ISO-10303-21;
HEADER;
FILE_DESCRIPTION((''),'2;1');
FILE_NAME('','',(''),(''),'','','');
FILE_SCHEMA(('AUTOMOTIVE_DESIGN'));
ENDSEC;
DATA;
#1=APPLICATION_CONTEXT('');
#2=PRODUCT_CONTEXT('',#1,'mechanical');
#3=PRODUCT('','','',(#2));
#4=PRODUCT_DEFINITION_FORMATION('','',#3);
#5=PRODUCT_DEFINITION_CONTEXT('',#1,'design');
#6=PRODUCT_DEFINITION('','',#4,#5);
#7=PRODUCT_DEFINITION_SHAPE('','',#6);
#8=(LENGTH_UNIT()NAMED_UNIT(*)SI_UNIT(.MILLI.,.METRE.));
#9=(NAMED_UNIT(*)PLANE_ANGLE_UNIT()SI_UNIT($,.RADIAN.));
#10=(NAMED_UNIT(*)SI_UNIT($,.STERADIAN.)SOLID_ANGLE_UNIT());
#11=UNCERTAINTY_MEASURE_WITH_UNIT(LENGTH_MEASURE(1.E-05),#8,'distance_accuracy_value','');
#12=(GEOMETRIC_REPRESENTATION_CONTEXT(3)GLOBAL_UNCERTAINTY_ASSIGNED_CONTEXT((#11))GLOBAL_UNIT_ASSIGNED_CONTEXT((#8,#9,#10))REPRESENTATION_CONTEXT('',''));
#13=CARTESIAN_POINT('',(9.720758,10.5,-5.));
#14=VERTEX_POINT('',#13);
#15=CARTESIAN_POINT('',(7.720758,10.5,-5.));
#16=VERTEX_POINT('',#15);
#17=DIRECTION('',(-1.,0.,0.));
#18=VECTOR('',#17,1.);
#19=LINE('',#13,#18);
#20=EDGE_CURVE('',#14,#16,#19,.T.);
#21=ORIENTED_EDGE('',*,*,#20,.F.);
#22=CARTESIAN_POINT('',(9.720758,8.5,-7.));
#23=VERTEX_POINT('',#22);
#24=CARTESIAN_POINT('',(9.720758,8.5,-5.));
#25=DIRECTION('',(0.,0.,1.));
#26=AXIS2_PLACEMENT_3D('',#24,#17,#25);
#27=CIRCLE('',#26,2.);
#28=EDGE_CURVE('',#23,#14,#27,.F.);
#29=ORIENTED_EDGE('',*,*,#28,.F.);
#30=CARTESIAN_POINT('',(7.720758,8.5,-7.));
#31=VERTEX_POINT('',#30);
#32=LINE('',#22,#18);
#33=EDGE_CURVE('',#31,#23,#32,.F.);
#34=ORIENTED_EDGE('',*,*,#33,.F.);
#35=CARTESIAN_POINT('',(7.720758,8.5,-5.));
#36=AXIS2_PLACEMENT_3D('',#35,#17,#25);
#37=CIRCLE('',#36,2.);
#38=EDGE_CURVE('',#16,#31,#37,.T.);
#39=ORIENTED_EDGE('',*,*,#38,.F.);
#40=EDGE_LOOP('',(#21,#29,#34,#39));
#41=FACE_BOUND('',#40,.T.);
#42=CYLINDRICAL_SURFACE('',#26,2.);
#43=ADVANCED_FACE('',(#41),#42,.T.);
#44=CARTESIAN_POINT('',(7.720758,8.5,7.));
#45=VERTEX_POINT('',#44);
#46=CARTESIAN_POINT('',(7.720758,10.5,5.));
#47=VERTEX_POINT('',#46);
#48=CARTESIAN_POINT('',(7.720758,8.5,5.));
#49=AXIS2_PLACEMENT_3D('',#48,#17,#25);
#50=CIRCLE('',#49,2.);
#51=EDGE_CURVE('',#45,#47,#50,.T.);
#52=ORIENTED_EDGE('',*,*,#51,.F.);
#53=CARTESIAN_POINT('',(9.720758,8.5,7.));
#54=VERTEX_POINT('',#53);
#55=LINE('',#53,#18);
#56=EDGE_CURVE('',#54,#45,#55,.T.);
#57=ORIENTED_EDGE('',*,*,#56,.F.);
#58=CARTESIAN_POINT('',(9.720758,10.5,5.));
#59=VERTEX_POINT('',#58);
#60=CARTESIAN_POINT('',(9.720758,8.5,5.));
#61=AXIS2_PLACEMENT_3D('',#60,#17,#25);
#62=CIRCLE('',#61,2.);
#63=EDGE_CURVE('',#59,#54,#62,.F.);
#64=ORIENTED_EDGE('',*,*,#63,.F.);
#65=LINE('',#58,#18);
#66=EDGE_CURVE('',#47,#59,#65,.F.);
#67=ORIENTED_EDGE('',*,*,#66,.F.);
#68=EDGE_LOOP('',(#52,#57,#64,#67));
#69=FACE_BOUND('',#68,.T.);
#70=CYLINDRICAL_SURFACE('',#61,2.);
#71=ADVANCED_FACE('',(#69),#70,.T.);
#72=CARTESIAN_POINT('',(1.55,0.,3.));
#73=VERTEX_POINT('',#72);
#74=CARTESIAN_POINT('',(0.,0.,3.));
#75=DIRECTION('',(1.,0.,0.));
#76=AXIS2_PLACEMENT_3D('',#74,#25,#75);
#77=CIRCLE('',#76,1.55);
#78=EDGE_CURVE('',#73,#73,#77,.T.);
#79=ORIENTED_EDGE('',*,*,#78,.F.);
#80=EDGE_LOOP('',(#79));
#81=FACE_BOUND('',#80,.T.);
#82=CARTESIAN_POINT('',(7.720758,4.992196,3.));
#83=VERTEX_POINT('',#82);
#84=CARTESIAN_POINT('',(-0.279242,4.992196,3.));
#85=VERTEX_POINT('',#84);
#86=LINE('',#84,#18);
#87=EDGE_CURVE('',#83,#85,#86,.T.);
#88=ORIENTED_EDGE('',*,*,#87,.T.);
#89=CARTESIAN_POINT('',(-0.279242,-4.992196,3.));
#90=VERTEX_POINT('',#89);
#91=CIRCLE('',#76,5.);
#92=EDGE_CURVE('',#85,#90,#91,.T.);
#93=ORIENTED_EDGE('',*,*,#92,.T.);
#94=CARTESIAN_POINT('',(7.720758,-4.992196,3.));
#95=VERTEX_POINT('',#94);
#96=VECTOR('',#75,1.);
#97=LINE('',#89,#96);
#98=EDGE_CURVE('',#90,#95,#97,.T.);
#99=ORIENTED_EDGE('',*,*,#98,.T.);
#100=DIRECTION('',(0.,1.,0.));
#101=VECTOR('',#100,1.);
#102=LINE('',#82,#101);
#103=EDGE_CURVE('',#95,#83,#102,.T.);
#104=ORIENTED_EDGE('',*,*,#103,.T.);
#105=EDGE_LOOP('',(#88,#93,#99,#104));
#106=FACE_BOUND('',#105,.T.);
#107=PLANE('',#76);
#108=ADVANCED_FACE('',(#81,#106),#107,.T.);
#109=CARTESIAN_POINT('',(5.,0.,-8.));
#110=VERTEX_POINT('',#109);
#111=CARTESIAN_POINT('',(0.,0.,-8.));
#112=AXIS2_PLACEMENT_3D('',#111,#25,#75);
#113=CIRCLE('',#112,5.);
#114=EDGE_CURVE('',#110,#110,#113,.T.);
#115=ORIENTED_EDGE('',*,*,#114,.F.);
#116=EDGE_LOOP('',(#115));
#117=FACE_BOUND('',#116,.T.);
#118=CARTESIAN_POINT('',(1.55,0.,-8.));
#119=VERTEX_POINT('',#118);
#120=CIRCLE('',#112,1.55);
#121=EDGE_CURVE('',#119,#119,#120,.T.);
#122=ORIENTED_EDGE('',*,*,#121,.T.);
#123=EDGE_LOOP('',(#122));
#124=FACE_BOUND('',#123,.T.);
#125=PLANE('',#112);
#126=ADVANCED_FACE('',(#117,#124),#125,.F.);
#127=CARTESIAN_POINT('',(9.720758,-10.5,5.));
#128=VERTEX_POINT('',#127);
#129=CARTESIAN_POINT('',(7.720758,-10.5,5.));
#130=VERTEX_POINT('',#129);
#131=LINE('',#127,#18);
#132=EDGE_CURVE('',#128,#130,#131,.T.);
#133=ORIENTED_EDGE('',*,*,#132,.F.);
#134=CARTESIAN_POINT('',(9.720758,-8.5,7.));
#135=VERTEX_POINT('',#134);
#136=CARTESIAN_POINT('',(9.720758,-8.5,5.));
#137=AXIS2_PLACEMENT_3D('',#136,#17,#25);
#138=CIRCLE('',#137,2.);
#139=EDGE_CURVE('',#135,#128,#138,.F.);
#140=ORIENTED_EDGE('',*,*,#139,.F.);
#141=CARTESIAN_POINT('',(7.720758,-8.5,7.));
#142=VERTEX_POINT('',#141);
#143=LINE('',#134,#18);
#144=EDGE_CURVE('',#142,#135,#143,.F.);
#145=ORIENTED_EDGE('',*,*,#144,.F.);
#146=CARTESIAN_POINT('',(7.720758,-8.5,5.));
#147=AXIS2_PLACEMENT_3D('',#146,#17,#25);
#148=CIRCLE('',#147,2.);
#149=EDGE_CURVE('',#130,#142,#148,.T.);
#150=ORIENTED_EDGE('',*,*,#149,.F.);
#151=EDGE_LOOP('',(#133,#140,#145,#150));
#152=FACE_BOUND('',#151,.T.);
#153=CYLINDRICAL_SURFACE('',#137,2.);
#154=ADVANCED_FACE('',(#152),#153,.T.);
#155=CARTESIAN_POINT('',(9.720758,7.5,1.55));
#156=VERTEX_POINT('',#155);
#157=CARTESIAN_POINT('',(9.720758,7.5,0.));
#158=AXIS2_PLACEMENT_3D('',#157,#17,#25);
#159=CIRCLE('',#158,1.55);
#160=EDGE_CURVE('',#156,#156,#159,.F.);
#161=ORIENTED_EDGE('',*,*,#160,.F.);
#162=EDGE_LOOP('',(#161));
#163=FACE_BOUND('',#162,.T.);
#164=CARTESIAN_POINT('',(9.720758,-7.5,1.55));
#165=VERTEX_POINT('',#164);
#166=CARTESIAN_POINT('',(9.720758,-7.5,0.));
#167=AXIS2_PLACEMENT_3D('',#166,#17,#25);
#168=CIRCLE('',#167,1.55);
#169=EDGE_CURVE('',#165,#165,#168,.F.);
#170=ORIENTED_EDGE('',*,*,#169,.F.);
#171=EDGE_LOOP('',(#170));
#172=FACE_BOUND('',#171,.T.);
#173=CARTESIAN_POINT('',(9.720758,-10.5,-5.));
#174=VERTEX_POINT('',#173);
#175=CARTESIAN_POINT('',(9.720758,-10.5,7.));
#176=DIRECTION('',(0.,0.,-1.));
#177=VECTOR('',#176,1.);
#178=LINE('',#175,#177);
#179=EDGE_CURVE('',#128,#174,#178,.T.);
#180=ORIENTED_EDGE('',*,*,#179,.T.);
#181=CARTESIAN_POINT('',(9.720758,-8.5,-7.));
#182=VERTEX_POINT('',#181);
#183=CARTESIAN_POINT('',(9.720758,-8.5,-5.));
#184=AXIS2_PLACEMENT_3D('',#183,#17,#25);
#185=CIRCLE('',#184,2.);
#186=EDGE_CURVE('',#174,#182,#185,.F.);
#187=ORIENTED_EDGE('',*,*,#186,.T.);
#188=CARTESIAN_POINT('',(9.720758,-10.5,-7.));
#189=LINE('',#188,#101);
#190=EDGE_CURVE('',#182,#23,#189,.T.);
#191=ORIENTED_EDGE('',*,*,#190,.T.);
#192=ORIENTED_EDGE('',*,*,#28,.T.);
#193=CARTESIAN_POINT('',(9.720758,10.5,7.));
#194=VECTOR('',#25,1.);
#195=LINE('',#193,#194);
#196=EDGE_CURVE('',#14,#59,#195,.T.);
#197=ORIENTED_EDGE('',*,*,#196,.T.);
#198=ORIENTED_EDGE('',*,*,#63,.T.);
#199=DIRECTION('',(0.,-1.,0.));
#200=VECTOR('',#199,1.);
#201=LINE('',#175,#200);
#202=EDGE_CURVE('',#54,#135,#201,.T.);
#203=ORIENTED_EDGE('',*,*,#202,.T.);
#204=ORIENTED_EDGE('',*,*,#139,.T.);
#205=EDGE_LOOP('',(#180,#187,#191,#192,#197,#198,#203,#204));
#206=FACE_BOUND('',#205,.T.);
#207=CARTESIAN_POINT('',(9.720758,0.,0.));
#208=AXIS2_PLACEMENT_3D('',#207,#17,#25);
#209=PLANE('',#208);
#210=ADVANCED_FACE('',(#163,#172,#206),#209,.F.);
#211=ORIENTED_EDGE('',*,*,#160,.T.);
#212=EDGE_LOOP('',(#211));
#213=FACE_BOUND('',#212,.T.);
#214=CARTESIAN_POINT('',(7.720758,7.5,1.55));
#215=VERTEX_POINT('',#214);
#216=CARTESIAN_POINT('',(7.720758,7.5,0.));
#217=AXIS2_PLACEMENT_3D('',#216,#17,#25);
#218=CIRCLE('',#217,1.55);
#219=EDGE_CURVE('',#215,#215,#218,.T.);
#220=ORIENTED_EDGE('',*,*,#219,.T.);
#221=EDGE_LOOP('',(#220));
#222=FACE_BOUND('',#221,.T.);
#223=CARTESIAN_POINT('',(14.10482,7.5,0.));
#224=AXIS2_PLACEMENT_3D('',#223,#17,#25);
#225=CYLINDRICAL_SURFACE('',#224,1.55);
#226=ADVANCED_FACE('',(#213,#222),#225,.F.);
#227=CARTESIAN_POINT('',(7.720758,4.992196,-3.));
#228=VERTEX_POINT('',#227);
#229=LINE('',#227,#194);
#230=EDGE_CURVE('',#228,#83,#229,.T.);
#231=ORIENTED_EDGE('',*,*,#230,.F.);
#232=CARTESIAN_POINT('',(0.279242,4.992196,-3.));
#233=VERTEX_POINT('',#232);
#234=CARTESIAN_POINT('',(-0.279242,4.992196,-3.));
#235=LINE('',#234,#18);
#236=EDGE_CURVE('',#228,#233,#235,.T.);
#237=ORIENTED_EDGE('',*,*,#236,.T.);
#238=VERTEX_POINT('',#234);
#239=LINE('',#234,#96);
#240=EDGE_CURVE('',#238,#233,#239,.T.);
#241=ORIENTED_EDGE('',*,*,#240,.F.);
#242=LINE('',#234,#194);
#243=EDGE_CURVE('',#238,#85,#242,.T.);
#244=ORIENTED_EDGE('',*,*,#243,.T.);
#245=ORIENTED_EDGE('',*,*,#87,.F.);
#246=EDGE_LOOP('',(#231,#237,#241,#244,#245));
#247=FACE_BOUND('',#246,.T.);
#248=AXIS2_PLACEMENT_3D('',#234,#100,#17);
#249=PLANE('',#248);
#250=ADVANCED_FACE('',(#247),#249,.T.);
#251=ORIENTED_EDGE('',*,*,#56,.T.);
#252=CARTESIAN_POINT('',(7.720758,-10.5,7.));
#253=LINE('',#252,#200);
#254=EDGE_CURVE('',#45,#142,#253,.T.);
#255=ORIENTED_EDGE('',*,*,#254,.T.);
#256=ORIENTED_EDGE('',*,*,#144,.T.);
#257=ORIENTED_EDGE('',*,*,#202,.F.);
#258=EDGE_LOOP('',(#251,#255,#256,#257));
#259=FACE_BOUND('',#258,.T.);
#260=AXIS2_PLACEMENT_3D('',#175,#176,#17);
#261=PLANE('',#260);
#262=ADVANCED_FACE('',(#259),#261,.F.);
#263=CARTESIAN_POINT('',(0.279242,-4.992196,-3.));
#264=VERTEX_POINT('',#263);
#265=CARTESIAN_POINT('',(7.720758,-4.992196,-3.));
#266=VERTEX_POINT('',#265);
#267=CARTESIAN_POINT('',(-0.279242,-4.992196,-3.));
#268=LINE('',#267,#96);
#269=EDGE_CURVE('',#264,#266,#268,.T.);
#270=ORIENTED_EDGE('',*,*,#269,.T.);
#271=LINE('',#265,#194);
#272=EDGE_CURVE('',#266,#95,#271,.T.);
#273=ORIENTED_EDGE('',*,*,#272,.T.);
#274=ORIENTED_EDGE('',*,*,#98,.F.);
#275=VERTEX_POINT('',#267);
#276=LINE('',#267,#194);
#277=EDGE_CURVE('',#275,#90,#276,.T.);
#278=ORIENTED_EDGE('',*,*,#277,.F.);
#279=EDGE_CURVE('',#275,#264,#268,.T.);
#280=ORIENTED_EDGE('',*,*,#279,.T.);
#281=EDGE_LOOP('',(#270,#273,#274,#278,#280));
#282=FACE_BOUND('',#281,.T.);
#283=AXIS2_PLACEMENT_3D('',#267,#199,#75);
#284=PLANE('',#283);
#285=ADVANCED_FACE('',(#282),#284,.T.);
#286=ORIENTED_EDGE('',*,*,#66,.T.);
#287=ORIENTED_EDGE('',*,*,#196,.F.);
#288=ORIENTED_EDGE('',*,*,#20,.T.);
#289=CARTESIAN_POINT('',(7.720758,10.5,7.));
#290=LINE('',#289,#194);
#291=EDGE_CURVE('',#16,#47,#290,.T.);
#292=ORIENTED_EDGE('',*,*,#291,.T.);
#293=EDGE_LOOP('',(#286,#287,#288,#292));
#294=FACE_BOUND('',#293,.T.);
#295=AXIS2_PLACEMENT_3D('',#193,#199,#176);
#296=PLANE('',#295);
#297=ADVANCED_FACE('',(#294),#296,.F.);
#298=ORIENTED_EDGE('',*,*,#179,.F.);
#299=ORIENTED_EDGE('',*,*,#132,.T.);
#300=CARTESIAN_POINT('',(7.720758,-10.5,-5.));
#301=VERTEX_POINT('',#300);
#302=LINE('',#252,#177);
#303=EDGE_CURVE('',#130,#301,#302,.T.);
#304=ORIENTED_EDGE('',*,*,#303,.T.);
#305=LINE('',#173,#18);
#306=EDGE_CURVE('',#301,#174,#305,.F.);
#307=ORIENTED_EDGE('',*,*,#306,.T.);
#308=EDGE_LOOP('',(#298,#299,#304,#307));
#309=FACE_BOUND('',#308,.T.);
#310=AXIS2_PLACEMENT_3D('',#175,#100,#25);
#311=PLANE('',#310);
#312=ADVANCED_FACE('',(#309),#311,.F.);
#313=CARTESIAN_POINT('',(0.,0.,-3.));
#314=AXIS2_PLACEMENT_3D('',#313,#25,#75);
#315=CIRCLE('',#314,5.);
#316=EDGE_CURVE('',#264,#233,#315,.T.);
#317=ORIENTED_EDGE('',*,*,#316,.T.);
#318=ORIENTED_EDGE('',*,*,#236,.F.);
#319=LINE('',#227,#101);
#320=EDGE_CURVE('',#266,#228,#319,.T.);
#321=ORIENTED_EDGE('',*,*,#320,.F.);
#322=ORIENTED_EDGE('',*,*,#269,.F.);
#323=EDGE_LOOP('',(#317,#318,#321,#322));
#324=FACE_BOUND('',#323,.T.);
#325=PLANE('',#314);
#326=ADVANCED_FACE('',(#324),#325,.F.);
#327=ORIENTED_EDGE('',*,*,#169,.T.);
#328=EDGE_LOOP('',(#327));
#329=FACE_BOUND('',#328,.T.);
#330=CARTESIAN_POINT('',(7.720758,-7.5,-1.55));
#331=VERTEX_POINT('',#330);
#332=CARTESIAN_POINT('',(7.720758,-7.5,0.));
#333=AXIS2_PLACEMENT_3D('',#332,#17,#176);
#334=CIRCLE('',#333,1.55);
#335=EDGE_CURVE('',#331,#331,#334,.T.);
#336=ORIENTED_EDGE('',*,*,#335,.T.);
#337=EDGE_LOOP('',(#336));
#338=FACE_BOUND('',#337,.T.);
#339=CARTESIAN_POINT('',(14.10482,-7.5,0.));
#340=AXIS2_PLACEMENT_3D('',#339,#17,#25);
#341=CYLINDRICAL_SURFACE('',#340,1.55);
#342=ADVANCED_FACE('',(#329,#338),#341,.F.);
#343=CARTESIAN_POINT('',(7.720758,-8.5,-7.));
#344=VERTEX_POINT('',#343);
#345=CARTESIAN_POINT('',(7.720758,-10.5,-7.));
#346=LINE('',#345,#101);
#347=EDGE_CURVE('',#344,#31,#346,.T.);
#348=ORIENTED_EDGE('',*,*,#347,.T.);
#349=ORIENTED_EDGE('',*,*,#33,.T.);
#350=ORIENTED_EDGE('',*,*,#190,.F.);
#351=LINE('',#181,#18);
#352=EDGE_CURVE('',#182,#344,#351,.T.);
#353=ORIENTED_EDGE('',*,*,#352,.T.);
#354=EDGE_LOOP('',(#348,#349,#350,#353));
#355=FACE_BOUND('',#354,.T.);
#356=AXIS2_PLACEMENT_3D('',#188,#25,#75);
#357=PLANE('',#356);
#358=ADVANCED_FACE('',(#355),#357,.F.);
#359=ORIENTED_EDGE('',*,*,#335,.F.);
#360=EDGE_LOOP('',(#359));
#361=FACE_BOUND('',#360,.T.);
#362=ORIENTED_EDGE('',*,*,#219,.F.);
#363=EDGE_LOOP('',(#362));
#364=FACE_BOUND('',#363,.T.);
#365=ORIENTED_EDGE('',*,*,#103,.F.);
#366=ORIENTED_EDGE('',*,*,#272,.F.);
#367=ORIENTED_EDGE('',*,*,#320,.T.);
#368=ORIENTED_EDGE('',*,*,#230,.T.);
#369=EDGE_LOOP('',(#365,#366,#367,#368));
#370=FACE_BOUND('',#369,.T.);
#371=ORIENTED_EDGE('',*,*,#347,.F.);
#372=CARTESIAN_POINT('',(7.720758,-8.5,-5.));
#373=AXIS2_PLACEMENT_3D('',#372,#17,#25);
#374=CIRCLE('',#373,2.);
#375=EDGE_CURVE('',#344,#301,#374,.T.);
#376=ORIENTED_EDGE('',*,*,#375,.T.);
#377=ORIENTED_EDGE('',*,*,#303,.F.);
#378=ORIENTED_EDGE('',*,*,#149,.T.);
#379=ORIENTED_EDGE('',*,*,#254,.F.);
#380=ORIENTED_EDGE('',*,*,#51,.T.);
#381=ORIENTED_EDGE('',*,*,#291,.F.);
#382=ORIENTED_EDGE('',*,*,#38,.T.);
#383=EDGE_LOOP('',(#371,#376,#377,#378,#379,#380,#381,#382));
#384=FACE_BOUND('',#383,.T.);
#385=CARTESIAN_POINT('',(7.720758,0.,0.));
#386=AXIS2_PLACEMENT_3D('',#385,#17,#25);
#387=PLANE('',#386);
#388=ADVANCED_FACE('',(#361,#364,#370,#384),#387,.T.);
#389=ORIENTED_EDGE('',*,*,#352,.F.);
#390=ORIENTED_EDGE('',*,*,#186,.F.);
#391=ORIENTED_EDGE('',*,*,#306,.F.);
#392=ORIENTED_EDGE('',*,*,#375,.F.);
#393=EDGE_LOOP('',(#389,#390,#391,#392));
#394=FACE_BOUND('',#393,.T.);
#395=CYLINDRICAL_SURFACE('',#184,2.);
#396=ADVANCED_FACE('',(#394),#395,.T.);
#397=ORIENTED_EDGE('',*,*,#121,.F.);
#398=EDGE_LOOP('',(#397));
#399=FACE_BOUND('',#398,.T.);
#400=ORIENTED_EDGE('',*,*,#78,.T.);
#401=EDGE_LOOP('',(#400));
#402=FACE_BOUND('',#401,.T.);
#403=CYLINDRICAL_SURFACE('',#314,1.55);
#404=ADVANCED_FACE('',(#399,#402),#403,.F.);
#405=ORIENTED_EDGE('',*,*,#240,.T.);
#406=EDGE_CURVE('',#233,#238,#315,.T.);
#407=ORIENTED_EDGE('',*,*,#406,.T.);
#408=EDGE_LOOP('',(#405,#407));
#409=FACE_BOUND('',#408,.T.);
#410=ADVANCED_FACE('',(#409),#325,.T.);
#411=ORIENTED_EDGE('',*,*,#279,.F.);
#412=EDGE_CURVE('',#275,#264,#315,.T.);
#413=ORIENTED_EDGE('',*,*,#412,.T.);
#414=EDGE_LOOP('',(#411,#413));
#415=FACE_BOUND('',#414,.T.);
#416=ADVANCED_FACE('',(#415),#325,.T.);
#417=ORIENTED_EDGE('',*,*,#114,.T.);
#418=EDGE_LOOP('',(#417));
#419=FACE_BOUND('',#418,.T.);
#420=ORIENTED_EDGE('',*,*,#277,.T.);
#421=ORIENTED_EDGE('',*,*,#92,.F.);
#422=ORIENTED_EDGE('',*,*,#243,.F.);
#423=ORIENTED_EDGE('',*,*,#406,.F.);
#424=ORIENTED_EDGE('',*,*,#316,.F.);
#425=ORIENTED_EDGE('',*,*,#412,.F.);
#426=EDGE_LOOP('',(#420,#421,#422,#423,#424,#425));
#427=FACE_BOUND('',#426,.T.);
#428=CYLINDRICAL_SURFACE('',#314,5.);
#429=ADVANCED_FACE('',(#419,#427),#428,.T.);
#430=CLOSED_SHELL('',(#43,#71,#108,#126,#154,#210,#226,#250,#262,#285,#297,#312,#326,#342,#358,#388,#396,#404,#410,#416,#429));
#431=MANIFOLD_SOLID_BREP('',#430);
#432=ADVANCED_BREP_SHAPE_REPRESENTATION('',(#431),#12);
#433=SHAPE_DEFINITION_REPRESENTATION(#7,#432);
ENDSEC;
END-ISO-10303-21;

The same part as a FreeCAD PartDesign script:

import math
import FreeCAD as App
import Part
import Sketcher

V = App.Vector
Q = App.Units.Quantity


def edges_at(feature, points):
    """Names of the edges that pass closest to the given points."""
    edges = feature.Shape.Edges
    near = lambda p: min(range(len(edges)), key=lambda i: edges[i].distToShape(Part.Vertex(*p))[0])
    return sorted({f"Edge{near(p) + 1}" for p in points})


def add_polygon(sketch, points):
    """Adds a closed chain of lines whose ends are joined by coincident constraints."""
    first, n = sketch.GeometryCount, len(points)
    for a, b in zip(points, points[1:] + points[:1]):
        sketch.addGeometry(Part.LineSegment(App.Vector(*a, 0), App.Vector(*b, 0)), False)
    for i in range(n):
        sketch.addConstraint(Sketcher.Constraint("Coincident", first + i, 2, first + (i + 1) % n, 1))

doc = App.newDocument("Part")
params = doc.addObject("Spreadsheet::Sheet", "Params")
for row, (alias, value) in enumerate([
    ("sketch1_radius", "5 mm"),
    ("sketch1_diameter", "3.1 mm"),
    ("sketch1_width", "8 mm"),
    ("pad1_length", "3 mm"),
    ("pad1_length2", "3 mm"),
    ("sketch2_width", "21 mm"),
    ("sketch2_height", "14 mm"),
    ("pad2_length", "2 mm"),
    ("sketch3_diameter", "3.1 mm"),
    ("pocket1_length", "2 mm"),
    ("fillet_radius", "2 mm"),
    ("sketch4_diameter", "10 mm"),
    ("sketch4_diameter2", "3.1 mm"),
    ("pad3_length", "5 mm"),
], start=1):
    params.set(f"A{row}", alias)
    params.set(f"B{row}", "=" + value)
    params.setAlias(f"B{row}", alias)

body = doc.addObject("PartDesign::Body", "Body")

# Sketch on XY plane
sketch1 = body.newObject("Sketcher::SketchObject", "Sketch")
sketch1.AttachmentSupport = (doc.getObject("XY_Plane"), [""])
sketch1.MapMode = "FlatFace"
sketch1.addGeometry(Part.LineSegment(V(7.720758, 4.992196, 0), V(-0.279242, 4.992196, 0)), False)
sketch1.addGeometry(Part.ArcOfCircle(Part.Circle(V(0, 0, 0), V(0, 0, 1), 5), math.radians(93.201544), math.radians(266.798456)), False)
sketch1.addGeometry(Part.LineSegment(V(-0.279242, -4.992196, 0), V(7.720758, -4.992196, 0)), False)
sketch1.addGeometry(Part.LineSegment(V(7.720758, -4.992196, 0), V(7.720758, 4.992196, 0)), False)
sketch1.addGeometry(Part.Circle(V(0, 0, 0), V(0, 0, 1), 1.55), False)
sketch1.addConstraint(Sketcher.Constraint("Coincident", 0, 2, 1, 1))
sketch1.addConstraint(Sketcher.Constraint("Coincident", 1, 2, 2, 1))
sketch1.addConstraint(Sketcher.Constraint("Coincident", 2, 2, 3, 1))
sketch1.addConstraint(Sketcher.Constraint("Coincident", 3, 2, 0, 1))
sketch1.addConstraint(Sketcher.Constraint("Horizontal", 0))
sketch1.addConstraint(Sketcher.Constraint("Horizontal", 2))
sketch1.addConstraint(Sketcher.Constraint("Vertical", 3))
sketch1.addConstraint(Sketcher.Constraint("Coincident", 1, 3, -1, 1))
sketch1.addConstraint(Sketcher.Constraint("Coincident", 4, 3, -1, 1))
sketch1.addConstraint(Sketcher.Constraint("Vertical", 0, 2, 1, 2))
sketch1.addConstraint(Sketcher.Constraint("Radius", 1, Q("5 mm")))
sketch1.addConstraint(Sketcher.Constraint("Diameter", 4, Q("3.1 mm")))
sketch1.addConstraint(Sketcher.Constraint("DistanceX", 0, 2, 0, 1, Q("8 mm")))
sketch1.addConstraint(Sketcher.Constraint("DistanceY", 3, 1, 3, 2, Q("9.984393 mm")))
sketch1.setExpression("Constraints[10]", "Params.sketch1_radius")
sketch1.setExpression("Constraints[11]", "Params.sketch1_diameter")
sketch1.setExpression("Constraints[12]", "Params.sketch1_width")
pad1 = body.newObject("PartDesign::Pad", "Pad")
pad1.Profile = sketch1
pad1.Type = "TwoLengths"
pad1.setExpression("Length", "Params.pad1_length")
pad1.setExpression("Length2", "Params.pad1_length2")

# Sketch on YZ plane
sketch2 = body.newObject("Sketcher::SketchObject", "Sketch001")
sketch2.AttachmentSupport = (doc.getObject("YZ_Plane"), [""])
sketch2.MapMode = "FlatFace"
sketch2.AttachmentOffset = App.Placement(V(0, 0, 7.720758), App.Rotation())
add_polygon(sketch2, [(10.5, 7), (-10.5, 7), (-10.5, -7), (10.5, -7)])  # lines 0-3
sketch2.addConstraint(Sketcher.Constraint("Horizontal", 0))
sketch2.addConstraint(Sketcher.Constraint("Vertical", 1))
sketch2.addConstraint(Sketcher.Constraint("Horizontal", 2))
sketch2.addConstraint(Sketcher.Constraint("Vertical", 3))
sketch2.addConstraint(Sketcher.Constraint("Symmetric", 0, 2, 2, 2, -1, 1))
sketch2.addConstraint(Sketcher.Constraint("DistanceX", 0, 2, 0, 1, Q("21 mm")))
sketch2.addConstraint(Sketcher.Constraint("DistanceY", 1, 2, 1, 1, Q("14 mm")))
sketch2.setExpression("Constraints[9]", "Params.sketch2_width")
sketch2.setExpression("Constraints[10]", "Params.sketch2_height")
pad2 = body.newObject("PartDesign::Pad", "Pad001")
pad2.Profile = sketch2
pad2.setExpression("Length", "Params.pad2_length")

# Sketch on YZ plane
sketch3 = body.newObject("Sketcher::SketchObject", "Sketch002")
sketch3.AttachmentSupport = (doc.getObject("YZ_Plane"), [""])
sketch3.MapMode = "FlatFace"
sketch3.AttachmentOffset = App.Placement(V(0, 0, 7.720758), App.Rotation())
sketch3.addGeometry(Part.Circle(V(7.5, 0, 0), V(0, 0, 1), 1.55), False)
sketch3.addGeometry(Part.Circle(V(-7.5, 0, 0), V(0, 0, 1), 1.55), False)
sketch3.addConstraint(Sketcher.Constraint("Equal", 0, 1))
sketch3.addConstraint(Sketcher.Constraint("Symmetric", 0, 3, 1, 3, -1, 1))
sketch3.addConstraint(Sketcher.Constraint("PointOnObject", 0, 3, -1))
sketch3.addConstraint(Sketcher.Constraint("Diameter", 0, Q("3.1 mm")))
sketch3.addConstraint(Sketcher.Constraint("DistanceX", 1, 3, 0, 3, Q("15 mm")))
sketch3.setExpression("Constraints[3]", "Params.sketch3_diameter")
pocket1 = body.newObject("PartDesign::Pocket", "Pocket")
pocket1.Profile = sketch3
pocket1.setExpression("Length", "Params.pocket1_length")
pocket1.Reversed = True
doc.recompute()

fillet = body.newObject("PartDesign::Fillet", "Fillet")
fillet.Base = (pocket1, edges_at(pocket1, [
    (8.721, -10.5, -7),
    (8.721, 10.5, -7),
    (8.721, 10.5, 7),
    (8.721, -10.5, 7),
]))
fillet.setExpression("Radius", "Params.fillet_radius")

# Sketch on XY plane
sketch4 = body.newObject("Sketcher::SketchObject", "Sketch003")
sketch4.AttachmentSupport = (doc.getObject("XY_Plane"), [""])
sketch4.MapMode = "FlatFace"
sketch4.AttachmentOffset = App.Placement(V(0, 0, -8), App.Rotation())
sketch4.addGeometry(Part.Circle(V(0, 0, 0), V(0, 0, 1), 5), False)
sketch4.addGeometry(Part.Circle(V(0, 0, 0), V(0, 0, 1), 1.55), False)
sketch4.addConstraint(Sketcher.Constraint("Coincident", 0, 3, -1, 1))
sketch4.addConstraint(Sketcher.Constraint("Coincident", 1, 3, -1, 1))
sketch4.addConstraint(Sketcher.Constraint("Diameter", 0, Q("10 mm")))
sketch4.addConstraint(Sketcher.Constraint("Diameter", 1, Q("3.1 mm")))
sketch4.setExpression("Constraints[2]", "Params.sketch4_diameter")
sketch4.setExpression("Constraints[3]", "Params.sketch4_diameter2")
pad3 = body.newObject("PartDesign::Pad", "Pad002")
pad3.Profile = sketch4
pad3.setExpression("Length", "Params.pad3_length")

doc.recompute()
